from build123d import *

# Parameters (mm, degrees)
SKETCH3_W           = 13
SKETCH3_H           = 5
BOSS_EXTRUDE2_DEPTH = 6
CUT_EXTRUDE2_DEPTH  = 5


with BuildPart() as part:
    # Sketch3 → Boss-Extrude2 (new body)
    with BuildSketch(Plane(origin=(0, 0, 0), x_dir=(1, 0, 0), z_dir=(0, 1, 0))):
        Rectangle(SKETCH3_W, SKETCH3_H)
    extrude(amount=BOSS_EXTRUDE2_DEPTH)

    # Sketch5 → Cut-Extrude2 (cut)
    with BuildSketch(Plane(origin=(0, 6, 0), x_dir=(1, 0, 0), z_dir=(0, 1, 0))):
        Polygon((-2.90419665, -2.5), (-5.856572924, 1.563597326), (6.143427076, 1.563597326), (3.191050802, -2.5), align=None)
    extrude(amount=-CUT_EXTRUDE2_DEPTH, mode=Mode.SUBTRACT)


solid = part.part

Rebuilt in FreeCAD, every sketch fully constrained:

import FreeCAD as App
import Part
import Sketcher
from FreeCAD import Vector
Q = App.Units.Quantity


def add_polygon(sketch, points):
    """Adds a closed chain of lines whose ends are joined by coincident constraints."""
    first, n = sketch.GeometryCount, len(points)
    for a, b in zip(points, points[1:] + points[:1]):
        sketch.addGeometry(Part.LineSegment(App.Vector(*a, 0), App.Vector(*b, 0)), False)
    for i in range(n):
        sketch.addConstraint(Sketcher.Constraint("Coincident", first + i, 2, first + (i + 1) % n, 1))

doc = App.newDocument("Part")
body = doc.addObject("PartDesign::Body", "Body")

# Sketch on XZ plane
sketch1 = body.newObject("Sketcher::SketchObject", "Sketch")
sketch1.AttachmentSupport = (doc.getObject("XZ_Plane"), [""])
sketch1.MapMode = "FlatFace"
add_polygon(sketch1, [(-6, -2), (-6, 2), (6, 2), (6, -2)])  # lines 0-3
sketch1.addConstraint([
    Sketcher.Constraint("Vertical", 0),
    Sketcher.Constraint("Horizontal", 1),
    Sketcher.Constraint("Vertical", 2),
    Sketcher.Constraint("Horizontal", 3),
    Sketcher.Constraint("Symmetric", 0, 2, 2, 2, -1, 1),
    Sketcher.Constraint("DistanceX", 1, 1, 1, 2, Q("13 mm")),
    Sketcher.Constraint("DistanceY", 0, 1, 0, 2, Q("5 mm")),
])
pad1 = body.newObject("PartDesign::Pad", "Pad")
pad1.Profile = sketch1
pad1.Length = 6
pad1.Reversed = True

# Sketch on XZ plane
sketch2 = body.newObject("Sketcher::SketchObject", "Sketch001")
sketch2.AttachmentSupport = (doc.getObject("XZ_Plane"), [""])
sketch2.MapMode = "FlatFace"
sketch2.AttachmentOffset = App.Placement(Vector(0, 0, -6), App.Rotation())
add_polygon(sketch2, [(-6, -2), (-3, 2), (3, 2), (6, -2)])  # lines 0-3
sketch2.addConstraint([
    Sketcher.Constraint("Horizontal", 1),
    Sketcher.Constraint("Horizontal", 3),
    Sketcher.Constraint("Equal", 0, 2),
    Sketcher.Constraint("DistanceX", 3, 2, 3, 1, Q("12 mm")),
    Sketcher.Constraint("Angle", 0, Q("54 deg")),
    Sketcher.Constraint("DistanceY", -1, 1, 0, 2, Q("2.5 mm")),
    Sketcher.Constraint("DistanceX", 1, 1, 1, 2, Q("6.095247 mm")),
    Sketcher.Constraint("DistanceX", -1, 1, 1, 2, Q("3.191051 mm")),
])
pocket1 = body.newObject("PartDesign::Pocket", "Pocket")
pocket1.Profile = sketch2
pocket1.Length = 5
pocket1.Reversed = True

doc.recompute()
